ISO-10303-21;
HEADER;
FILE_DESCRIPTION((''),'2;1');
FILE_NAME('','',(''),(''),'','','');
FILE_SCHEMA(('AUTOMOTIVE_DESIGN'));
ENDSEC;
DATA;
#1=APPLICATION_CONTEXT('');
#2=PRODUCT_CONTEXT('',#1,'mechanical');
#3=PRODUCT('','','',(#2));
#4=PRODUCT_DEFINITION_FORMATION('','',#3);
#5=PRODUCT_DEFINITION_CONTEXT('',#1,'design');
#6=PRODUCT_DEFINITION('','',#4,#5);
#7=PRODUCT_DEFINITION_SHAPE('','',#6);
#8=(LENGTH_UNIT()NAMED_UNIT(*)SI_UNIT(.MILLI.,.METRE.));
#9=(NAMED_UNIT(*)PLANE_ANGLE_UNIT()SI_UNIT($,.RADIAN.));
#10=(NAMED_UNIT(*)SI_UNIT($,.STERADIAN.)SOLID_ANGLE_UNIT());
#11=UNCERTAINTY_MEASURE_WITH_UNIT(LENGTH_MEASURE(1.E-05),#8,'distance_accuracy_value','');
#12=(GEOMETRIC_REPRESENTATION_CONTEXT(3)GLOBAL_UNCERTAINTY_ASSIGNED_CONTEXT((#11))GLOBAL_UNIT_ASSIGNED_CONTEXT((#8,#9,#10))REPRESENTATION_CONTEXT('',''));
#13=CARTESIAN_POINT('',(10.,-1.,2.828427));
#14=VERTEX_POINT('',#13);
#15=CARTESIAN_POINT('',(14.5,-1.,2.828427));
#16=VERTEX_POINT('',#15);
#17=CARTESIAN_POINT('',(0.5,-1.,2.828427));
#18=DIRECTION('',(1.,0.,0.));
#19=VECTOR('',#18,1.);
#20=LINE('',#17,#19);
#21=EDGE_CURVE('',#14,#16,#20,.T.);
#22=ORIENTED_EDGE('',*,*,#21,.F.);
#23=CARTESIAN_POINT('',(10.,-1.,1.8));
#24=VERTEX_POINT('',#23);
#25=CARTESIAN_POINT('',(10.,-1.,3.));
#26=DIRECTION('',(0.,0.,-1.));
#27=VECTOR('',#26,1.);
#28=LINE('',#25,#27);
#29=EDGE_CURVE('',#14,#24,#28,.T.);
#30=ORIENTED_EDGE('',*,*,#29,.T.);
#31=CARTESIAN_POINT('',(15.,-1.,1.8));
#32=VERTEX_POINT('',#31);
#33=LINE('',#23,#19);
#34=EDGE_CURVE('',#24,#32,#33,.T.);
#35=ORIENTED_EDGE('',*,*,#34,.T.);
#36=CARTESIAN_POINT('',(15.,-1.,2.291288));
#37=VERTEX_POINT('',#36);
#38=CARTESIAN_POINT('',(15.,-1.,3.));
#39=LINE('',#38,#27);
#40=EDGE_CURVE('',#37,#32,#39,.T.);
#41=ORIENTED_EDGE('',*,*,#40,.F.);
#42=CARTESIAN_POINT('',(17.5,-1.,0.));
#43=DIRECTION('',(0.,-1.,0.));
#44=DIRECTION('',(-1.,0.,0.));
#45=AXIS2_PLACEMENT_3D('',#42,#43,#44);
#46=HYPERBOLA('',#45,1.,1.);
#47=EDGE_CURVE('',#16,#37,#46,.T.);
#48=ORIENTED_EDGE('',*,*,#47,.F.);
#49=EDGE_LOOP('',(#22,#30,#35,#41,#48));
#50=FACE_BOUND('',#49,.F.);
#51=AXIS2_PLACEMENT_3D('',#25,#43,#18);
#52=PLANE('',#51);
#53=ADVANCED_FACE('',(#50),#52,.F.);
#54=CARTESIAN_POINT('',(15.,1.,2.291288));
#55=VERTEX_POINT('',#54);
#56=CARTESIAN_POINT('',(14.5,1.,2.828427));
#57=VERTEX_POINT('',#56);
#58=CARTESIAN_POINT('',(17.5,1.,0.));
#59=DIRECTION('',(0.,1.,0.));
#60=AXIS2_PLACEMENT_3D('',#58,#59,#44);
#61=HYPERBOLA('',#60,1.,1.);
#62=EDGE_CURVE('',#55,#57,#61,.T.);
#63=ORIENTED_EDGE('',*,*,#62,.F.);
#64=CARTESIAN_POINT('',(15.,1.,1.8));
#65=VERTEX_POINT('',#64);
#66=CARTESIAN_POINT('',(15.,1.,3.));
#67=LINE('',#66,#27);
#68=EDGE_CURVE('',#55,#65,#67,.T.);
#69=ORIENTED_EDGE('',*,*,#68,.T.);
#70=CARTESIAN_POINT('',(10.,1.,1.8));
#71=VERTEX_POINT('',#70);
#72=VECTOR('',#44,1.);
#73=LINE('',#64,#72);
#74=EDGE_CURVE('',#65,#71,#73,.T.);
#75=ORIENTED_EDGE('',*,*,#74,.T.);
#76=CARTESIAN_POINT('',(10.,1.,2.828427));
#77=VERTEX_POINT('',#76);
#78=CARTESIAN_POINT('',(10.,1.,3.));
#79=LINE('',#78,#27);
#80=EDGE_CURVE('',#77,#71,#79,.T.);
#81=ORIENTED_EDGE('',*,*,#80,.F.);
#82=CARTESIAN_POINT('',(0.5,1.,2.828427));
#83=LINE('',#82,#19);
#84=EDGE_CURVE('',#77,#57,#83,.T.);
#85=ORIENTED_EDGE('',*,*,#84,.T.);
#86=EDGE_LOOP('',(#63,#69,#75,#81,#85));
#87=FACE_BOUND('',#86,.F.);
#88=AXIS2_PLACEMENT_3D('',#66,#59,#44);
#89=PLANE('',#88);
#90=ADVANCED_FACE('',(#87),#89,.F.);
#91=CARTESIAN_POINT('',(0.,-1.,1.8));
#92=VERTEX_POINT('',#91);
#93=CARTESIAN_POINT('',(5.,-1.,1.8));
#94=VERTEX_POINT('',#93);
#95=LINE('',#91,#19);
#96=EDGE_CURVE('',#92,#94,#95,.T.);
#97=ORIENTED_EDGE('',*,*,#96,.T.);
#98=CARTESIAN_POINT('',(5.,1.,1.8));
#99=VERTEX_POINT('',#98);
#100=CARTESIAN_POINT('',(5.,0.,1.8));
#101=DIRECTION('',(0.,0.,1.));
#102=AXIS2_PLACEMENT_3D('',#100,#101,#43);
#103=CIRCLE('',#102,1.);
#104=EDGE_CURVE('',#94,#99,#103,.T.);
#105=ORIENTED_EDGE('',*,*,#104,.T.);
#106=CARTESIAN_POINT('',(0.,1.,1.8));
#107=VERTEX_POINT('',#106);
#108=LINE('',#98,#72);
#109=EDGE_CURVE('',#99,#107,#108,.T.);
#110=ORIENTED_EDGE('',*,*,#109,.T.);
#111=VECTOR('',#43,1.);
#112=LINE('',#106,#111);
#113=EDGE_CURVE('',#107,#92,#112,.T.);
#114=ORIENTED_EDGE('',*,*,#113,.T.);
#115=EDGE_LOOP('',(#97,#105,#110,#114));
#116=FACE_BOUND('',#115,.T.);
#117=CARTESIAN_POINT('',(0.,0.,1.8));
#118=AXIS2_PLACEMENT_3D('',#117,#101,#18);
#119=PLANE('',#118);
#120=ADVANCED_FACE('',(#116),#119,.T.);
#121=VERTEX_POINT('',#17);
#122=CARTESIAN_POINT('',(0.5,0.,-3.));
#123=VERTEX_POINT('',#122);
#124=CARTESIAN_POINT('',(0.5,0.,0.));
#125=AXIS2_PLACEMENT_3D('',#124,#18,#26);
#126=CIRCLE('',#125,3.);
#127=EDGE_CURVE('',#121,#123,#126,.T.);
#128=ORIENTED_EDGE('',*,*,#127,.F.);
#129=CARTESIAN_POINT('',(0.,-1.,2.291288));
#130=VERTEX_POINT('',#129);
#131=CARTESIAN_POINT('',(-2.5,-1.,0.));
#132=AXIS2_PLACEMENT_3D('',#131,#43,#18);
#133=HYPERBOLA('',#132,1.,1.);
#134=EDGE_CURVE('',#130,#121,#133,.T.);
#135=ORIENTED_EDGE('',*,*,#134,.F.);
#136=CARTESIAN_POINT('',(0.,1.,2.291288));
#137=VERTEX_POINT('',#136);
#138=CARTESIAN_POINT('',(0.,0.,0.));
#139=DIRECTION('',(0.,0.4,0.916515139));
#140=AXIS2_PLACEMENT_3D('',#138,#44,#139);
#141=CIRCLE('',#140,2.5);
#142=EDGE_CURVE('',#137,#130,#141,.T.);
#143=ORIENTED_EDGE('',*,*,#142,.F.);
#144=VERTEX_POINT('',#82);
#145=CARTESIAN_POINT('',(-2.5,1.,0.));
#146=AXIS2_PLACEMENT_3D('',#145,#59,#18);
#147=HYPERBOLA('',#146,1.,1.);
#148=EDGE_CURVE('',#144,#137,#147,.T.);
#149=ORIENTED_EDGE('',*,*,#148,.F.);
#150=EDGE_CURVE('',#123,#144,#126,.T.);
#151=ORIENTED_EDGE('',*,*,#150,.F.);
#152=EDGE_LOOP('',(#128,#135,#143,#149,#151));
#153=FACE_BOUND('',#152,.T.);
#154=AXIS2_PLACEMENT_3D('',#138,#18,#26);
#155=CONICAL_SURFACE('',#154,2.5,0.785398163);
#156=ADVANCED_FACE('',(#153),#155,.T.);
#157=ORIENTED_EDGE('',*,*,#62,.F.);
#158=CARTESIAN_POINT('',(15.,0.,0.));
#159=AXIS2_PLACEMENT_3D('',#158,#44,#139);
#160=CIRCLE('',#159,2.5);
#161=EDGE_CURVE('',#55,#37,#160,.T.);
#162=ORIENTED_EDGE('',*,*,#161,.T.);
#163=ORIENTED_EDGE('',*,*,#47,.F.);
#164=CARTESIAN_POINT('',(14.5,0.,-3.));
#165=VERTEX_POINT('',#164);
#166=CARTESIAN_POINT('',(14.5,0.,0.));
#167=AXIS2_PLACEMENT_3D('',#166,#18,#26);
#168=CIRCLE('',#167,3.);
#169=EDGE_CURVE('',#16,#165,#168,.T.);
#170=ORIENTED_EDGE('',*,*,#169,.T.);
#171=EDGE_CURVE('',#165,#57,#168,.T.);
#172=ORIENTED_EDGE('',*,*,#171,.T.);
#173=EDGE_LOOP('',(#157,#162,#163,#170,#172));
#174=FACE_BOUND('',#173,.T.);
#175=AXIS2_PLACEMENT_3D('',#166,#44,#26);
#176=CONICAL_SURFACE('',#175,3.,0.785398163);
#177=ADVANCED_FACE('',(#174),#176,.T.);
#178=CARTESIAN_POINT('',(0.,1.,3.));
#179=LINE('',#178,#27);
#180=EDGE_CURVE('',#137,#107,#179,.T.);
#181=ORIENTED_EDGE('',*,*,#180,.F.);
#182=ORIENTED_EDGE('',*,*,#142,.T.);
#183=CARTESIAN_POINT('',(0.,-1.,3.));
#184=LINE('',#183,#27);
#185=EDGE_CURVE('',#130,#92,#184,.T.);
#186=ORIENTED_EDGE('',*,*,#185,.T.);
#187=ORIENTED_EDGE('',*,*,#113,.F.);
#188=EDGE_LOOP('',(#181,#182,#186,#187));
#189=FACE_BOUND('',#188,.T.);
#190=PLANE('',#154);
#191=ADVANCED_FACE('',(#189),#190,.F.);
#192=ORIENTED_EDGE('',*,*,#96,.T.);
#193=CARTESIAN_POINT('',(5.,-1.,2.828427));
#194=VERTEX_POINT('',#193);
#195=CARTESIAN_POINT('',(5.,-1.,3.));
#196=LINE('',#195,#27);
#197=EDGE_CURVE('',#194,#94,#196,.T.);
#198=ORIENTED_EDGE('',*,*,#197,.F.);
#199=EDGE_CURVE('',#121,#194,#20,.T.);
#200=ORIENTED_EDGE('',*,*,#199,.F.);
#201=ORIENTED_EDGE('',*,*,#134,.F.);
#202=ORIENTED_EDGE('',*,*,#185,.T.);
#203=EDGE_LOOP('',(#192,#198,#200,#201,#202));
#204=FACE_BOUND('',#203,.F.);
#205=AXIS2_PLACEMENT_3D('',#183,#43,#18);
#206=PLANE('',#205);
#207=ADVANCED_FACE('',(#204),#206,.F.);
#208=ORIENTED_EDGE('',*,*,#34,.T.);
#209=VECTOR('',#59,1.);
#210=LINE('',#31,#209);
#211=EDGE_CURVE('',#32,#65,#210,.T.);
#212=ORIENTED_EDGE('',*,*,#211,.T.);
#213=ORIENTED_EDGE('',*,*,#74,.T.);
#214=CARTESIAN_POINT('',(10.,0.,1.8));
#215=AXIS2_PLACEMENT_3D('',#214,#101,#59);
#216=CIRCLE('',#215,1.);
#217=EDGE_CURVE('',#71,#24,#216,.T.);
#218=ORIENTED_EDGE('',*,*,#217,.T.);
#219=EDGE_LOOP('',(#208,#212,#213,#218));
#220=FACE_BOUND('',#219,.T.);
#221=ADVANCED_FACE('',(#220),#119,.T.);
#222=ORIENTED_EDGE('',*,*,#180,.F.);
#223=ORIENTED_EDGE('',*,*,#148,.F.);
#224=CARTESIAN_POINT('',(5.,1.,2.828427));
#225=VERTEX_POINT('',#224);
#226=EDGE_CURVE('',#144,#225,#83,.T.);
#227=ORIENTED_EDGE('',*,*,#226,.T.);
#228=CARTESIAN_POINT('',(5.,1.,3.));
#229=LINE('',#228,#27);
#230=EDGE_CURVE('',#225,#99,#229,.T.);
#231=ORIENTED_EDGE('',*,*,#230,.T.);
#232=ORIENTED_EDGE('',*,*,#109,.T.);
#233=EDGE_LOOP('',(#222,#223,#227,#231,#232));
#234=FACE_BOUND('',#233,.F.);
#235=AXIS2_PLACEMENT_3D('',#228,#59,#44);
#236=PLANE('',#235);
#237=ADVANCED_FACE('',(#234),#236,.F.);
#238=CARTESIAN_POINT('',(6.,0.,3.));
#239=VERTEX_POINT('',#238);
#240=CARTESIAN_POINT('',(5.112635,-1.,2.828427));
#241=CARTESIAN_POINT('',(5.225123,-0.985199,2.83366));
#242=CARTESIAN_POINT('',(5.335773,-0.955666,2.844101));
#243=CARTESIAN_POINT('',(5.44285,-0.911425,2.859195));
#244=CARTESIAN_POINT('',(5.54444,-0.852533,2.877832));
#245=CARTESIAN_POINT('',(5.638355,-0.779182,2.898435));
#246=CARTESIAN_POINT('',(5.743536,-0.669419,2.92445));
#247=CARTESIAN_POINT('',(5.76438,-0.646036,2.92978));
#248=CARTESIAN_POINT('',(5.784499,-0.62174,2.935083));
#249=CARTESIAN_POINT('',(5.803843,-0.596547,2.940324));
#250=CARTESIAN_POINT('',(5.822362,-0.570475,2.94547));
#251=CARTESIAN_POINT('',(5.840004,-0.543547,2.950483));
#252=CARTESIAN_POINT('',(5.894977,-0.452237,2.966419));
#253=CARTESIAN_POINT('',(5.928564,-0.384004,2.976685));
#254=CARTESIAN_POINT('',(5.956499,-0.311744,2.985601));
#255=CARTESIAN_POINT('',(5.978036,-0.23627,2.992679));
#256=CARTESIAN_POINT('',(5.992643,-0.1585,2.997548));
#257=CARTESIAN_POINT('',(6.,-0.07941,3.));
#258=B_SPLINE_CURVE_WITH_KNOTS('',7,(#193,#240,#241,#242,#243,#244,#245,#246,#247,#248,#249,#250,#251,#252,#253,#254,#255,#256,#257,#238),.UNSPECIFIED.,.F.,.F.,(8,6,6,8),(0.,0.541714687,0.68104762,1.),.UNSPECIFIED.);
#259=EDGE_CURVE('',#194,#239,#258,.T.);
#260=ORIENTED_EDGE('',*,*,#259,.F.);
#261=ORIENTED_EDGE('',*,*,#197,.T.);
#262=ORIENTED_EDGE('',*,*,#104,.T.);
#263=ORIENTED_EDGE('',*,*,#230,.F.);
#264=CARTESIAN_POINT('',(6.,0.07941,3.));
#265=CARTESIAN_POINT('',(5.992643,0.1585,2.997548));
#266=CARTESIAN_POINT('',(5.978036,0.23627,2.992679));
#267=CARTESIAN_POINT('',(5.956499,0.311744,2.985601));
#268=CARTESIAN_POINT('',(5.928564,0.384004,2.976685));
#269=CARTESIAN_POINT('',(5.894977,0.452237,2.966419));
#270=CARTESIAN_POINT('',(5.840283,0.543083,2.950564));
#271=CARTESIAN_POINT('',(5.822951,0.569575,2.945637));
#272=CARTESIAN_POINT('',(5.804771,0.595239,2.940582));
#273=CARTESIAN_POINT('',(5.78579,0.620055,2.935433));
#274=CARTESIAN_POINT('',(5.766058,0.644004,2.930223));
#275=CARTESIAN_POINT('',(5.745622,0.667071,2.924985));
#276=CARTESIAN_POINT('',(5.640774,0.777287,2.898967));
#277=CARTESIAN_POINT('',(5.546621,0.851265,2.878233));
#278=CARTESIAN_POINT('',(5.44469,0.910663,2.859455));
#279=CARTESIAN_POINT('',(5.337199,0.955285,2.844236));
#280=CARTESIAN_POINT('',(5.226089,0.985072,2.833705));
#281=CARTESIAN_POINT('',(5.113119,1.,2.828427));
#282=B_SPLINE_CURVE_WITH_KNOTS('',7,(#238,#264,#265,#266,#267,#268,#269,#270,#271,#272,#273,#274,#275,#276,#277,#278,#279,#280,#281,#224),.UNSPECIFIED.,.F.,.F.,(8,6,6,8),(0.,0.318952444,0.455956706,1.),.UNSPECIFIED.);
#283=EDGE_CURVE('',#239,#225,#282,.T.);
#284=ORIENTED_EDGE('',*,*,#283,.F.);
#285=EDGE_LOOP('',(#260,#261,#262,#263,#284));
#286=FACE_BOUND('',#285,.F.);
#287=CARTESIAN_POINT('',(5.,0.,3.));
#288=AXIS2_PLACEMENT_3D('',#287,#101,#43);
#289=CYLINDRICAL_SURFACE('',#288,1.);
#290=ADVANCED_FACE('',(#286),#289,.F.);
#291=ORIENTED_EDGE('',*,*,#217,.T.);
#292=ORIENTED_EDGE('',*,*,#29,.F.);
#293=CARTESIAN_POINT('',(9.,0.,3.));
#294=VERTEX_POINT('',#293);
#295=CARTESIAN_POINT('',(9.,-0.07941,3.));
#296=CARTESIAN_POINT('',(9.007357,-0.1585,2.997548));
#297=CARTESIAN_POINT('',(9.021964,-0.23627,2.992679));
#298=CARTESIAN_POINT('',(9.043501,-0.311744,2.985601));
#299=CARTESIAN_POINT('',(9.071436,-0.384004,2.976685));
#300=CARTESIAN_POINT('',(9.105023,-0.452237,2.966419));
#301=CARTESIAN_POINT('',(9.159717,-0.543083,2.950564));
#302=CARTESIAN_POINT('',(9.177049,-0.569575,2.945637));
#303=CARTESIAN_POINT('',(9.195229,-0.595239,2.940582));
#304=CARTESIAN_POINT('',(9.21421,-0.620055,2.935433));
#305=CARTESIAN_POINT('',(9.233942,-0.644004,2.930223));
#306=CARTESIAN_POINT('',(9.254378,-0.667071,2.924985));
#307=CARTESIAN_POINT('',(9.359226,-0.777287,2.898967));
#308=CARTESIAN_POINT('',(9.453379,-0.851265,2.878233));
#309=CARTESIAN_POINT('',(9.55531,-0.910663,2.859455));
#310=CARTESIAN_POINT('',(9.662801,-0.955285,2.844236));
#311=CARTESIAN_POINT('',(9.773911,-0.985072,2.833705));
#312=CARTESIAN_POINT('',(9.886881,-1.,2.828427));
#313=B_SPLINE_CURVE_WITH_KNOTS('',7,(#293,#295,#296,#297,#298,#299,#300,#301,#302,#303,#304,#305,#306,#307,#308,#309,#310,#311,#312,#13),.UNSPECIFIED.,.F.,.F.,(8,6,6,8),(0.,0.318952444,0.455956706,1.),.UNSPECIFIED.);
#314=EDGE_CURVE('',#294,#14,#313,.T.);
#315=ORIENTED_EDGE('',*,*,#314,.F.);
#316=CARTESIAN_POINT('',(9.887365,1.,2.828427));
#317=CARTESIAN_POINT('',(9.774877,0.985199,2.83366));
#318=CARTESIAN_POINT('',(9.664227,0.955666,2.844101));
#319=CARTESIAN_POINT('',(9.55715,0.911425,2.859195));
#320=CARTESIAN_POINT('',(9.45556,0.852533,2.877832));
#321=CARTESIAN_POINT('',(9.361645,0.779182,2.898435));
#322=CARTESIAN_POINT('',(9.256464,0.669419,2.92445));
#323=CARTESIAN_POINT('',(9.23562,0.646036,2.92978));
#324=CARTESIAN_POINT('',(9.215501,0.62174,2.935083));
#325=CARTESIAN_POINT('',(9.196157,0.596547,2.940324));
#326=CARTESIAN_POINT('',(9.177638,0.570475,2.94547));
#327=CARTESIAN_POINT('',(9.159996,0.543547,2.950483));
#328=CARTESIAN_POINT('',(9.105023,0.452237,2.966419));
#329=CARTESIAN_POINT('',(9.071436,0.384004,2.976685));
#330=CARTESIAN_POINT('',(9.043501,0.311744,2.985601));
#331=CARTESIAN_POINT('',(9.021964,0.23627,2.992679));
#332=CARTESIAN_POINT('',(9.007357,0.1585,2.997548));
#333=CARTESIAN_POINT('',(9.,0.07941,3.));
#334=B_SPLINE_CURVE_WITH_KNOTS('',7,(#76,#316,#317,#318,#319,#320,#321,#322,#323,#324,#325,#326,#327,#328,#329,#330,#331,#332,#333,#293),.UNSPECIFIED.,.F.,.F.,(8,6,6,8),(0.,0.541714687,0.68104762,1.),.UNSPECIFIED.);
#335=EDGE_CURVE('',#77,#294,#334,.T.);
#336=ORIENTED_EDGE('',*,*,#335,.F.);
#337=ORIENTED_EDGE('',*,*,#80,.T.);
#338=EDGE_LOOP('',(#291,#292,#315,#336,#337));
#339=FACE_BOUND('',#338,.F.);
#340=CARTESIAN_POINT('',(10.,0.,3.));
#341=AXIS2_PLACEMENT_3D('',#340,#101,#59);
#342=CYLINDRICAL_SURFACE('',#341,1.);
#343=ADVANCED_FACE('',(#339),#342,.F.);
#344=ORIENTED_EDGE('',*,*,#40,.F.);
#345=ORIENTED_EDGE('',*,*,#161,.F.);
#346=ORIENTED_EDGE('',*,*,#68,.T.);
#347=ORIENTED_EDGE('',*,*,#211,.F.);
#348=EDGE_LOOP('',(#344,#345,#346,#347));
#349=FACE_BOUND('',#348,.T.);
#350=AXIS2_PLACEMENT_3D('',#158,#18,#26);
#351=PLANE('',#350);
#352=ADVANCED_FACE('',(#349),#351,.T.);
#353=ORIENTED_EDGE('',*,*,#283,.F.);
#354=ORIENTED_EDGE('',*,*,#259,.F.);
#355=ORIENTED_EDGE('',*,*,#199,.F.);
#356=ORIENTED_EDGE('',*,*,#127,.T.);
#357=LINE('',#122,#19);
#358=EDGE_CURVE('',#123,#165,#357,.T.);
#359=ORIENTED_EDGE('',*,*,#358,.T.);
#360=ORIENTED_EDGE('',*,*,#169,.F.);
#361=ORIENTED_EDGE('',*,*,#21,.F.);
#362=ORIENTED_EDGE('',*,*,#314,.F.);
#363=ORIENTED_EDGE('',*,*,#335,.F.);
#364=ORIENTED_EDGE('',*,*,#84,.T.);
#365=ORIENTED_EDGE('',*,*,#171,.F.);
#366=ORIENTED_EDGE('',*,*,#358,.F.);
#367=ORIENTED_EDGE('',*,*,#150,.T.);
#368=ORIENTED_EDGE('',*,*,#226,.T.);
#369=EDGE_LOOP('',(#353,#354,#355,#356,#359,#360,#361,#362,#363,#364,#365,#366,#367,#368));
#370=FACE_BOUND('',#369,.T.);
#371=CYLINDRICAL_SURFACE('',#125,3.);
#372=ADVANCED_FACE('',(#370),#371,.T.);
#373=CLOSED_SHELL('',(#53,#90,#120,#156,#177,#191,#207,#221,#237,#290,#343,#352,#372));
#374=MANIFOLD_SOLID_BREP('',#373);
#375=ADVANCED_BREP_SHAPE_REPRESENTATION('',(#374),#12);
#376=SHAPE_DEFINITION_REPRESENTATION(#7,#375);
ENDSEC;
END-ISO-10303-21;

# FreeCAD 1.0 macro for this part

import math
import FreeCAD as App
import Part
import Sketcher

V = App.Vector


def add_polygon(sketch, points):
    """Adds a closed chain of lines whose ends are joined by coincident constraints."""
    first, n = sketch.GeometryCount, len(points)
    for a, b in zip(points, points[1:] + points[:1]):
        sketch.addGeometry(Part.LineSegment(App.Vector(*a, 0), App.Vector(*b, 0)), False)
    for i in range(n):
        sketch.addConstraint(Sketcher.Constraint("Coincident", first + i, 2, first + (i + 1) % n, 1))

doc = App.newDocument("Part")
body = doc.addObject("PartDesign::Body", "Body")

# Sketch on XZ plane
sketch1 = body.newObject("Sketcher::SketchObject", "Sketch")
sketch1.AttachmentSupport = (doc.getObject("XZ_Plane"), [""])
sketch1.MapMode = "FlatFace"
add_polygon(sketch1, [(0, 0), (15, 0), (15, -2.5), (14.5, -3), (0.5, -3), (0, -2.5)])  # lines 0-5
sketch1.addConstraint([
    Sketcher.Constraint("Horizontal", 0),
    Sketcher.Constraint("Vertical", 1),
    Sketcher.Constraint("Horizontal", 3),
    Sketcher.Constraint("Vertical", 5),
    Sketcher.Constraint("Coincident", 5, 2, -1, 1),
    Sketcher.Constraint("Perpendicular", 2, 4),
    Sketcher.Constraint("Horizontal", 1, 2, 4, 2),
    Sketcher.Constraint("Equal", 2, 4),
    Sketcher.Constraint("DistanceX", 0, 1, 0, 2, 15.0),
    Sketcher.Constraint("DistanceX", 3, 2, 3, 1, 14.0),
    Sketcher.Constraint("DistanceY", 1, 2, 1, 1, 2.5),
])
revolution = body.newObject("PartDesign::Revolution", "Revolution")
revolution.Profile = sketch1
revolution.ReferenceAxis = (sketch1, ["H_Axis"])
revolution.Angle = 360

# Sketch on XY plane
sketch2 = body.newObject("Sketcher::SketchObject", "Sketch001")
sketch2.AttachmentSupport = (doc.getObject("XY_Plane"), [""])
sketch2.MapMode = "FlatFace"
sketch2.AttachmentOffset = App.Placement(V(0, 0, 3), App.Rotation())
sketch2.addGeometry([
    Part.LineSegment(V(5, 1, 0), V(0, 1, 0)),
    Part.LineSegment(V(0, 1, 0), V(0, -1, 0)),
    Part.LineSegment(V(0, -1, 0), V(5, -1, 0)),
    Part.ArcOfCircle(Part.Circle(V(5, 0, 0), V(0, 0, 1), 1), math.radians(-90), math.radians(90)),
], False)
sketch2.addConstraint([
    Sketcher.Constraint("Coincident", 0, 2, 1, 1),
    Sketcher.Constraint("Coincident", 1, 2, 2, 1),
    Sketcher.Constraint("Tangent", 2, 2, 3, 1),
    Sketcher.Constraint("Tangent", 3, 2, 0, 1),
    Sketcher.Constraint("Horizontal", 0),
    Sketcher.Constraint("Vertical", 1),
    Sketcher.Constraint("Horizontal", 2),
    Sketcher.Constraint("Symmetric", 0, 2, 1, 2, -1, 1),
    Sketcher.Constraint("Radius", 3, 1.0),
    Sketcher.Constraint("DistanceX", 0, 2, 0, 1, 5.0),
])
pocket1 = body.newObject("PartDesign::Pocket", "Pocket")
pocket1.Profile = sketch2
pocket1.Length = 1.2

# Sketch on XY plane
sketch3 = body.newObject("Sketcher::SketchObject", "Sketch002")
sketch3.AttachmentSupport = (doc.getObject("XY_Plane"), [""])
sketch3.MapMode = "FlatFace"
sketch3.AttachmentOffset = App.Placement(V(0, 0, 3), App.Rotation())
sketch3.addGeometry([
    Part.LineSegment(V(15, 1, 0), V(10, 1, 0)),
    Part.ArcOfCircle(Part.Circle(V(10, 0, 0), V(0, 0, 1), 1), math.radians(90), math.radians(270)),
    Part.LineSegment(V(10, -1, 0), V(15, -1, 0)),
    Part.LineSegment(V(15, -1, 0), V(15, 1, 0)),
], False)
sketch3.addConstraint([
    Sketcher.Constraint("Tangent", 0, 2, 1, 1),
    Sketcher.Constraint("Tangent", 1, 2, 2, 1),
    Sketcher.Constraint("Coincident", 2, 2, 3, 1),
    Sketcher.Constraint("Coincident", 3, 2, 0, 1),
    Sketcher.Constraint("Horizontal", 0),
    Sketcher.Constraint("Horizontal", 2),
    Sketcher.Constraint("Vertical", 3),
    Sketcher.Constraint("PointOnObject", 1, 3, -1),
    Sketcher.Constraint("Radius", 1, 1.0),
    Sketcher.Constraint("DistanceX", 0, 2, 0, 1, 5.0),
    Sketcher.Constraint("DistanceX", -1, 1, 1, 3, 10.0),
])
pocket2 = body.newObject("PartDesign::Pocket", "Pocket001")
pocket2.Profile = sketch3
pocket2.Length = 1.2

doc.recompute()
